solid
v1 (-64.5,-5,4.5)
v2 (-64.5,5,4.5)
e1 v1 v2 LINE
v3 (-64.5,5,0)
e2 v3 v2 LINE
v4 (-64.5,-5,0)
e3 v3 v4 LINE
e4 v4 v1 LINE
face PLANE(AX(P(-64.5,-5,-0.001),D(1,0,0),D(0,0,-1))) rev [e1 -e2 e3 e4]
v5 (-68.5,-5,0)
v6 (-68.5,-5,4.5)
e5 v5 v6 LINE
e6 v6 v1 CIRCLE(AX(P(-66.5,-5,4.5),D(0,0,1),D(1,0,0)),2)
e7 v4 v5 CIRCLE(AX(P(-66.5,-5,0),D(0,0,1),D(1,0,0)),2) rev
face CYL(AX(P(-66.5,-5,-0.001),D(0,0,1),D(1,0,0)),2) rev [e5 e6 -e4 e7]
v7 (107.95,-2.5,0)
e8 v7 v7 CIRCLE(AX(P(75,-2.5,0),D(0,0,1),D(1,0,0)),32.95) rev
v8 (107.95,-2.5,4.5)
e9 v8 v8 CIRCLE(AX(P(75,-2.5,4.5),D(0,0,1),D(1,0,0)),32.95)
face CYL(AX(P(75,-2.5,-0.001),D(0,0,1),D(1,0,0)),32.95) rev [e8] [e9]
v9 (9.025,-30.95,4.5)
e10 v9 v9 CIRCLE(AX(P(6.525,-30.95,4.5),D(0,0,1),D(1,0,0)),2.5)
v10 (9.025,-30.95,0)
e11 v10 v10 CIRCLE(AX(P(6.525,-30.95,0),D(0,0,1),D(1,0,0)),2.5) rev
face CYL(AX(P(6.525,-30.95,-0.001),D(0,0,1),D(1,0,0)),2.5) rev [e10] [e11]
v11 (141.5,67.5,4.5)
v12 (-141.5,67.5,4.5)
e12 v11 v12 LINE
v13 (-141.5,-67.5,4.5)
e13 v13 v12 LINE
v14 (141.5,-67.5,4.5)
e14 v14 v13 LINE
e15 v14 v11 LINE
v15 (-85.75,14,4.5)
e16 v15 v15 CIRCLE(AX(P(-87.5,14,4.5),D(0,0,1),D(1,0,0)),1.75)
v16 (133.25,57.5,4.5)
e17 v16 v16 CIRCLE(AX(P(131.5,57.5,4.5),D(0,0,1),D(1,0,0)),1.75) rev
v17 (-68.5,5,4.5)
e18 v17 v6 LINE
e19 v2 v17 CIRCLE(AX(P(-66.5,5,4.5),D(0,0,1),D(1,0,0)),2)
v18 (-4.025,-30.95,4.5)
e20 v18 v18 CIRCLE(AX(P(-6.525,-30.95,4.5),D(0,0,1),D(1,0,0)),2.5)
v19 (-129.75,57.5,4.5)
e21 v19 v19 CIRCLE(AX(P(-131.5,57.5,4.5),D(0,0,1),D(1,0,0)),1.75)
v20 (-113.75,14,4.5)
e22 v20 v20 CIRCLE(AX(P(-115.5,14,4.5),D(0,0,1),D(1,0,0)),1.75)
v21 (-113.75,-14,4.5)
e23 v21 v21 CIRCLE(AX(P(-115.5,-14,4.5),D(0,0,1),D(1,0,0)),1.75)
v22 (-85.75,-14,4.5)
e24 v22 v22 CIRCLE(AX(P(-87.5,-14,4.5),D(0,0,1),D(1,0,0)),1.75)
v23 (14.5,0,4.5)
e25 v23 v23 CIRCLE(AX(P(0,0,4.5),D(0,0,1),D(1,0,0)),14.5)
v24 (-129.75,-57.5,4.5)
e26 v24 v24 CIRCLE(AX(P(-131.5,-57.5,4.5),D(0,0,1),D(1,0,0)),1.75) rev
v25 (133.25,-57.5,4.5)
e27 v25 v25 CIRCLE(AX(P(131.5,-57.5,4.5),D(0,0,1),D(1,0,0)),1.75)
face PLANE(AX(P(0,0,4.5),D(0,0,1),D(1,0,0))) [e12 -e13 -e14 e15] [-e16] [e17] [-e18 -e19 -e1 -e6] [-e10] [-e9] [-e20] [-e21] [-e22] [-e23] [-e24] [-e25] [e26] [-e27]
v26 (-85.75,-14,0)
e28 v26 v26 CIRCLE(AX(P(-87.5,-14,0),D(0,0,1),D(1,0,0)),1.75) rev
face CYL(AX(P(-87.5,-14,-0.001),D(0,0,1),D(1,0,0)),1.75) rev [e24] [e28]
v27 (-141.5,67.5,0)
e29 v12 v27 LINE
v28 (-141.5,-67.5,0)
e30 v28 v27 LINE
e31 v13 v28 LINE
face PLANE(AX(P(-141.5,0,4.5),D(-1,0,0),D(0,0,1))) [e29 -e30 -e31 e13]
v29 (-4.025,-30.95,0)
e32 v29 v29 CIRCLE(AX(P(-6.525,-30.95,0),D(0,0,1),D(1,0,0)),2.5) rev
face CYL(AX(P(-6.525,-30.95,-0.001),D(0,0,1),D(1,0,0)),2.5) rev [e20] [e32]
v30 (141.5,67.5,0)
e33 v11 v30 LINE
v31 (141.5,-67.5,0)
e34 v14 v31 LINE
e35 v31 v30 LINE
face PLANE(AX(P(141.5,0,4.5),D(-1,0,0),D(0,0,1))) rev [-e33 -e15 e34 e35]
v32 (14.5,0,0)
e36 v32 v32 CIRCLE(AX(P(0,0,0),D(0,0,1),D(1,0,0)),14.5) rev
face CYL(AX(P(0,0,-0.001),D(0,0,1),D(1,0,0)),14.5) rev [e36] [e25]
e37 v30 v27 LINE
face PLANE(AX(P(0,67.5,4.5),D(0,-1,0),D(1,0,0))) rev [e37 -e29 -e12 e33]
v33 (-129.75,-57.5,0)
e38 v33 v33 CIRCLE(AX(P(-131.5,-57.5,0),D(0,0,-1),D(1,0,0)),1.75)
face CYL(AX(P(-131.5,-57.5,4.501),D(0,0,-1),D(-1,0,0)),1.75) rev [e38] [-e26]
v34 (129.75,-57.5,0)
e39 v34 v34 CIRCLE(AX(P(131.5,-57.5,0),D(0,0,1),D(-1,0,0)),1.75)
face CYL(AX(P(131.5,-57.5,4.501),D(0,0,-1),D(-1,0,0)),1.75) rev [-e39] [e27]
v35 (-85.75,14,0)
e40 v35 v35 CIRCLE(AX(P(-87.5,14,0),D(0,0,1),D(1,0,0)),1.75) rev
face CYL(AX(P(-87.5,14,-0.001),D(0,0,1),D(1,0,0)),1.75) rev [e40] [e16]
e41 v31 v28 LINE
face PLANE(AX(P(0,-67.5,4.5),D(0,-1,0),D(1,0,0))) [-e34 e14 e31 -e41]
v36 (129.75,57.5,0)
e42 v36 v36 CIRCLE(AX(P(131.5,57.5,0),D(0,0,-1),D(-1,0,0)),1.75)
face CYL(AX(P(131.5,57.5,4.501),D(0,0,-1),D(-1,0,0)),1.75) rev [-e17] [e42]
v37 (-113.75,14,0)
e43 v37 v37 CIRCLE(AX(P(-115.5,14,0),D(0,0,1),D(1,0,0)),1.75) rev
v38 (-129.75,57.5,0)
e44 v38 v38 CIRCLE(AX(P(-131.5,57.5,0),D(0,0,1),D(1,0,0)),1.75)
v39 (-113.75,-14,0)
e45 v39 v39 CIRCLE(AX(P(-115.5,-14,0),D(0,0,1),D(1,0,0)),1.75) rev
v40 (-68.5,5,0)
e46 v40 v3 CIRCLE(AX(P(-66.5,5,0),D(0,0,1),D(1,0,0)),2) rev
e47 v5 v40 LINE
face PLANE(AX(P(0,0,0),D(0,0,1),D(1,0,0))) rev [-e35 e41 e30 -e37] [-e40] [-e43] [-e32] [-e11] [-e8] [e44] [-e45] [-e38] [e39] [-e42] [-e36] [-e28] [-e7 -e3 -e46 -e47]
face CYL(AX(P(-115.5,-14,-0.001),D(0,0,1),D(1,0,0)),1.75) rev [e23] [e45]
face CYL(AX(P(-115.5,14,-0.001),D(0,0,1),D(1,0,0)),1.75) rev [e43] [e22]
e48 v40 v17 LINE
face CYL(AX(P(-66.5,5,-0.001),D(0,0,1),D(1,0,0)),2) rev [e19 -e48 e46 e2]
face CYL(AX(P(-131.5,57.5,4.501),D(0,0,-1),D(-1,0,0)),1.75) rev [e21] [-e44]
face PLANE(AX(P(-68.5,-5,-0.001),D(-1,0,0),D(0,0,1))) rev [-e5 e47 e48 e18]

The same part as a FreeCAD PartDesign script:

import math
import FreeCAD as App
import Part
import Sketcher

V = App.Vector
Q = App.Units.Quantity

doc = App.newDocument("Part")
body = doc.addObject("PartDesign::Body", "Body")

sketch1 = body.newObject("Sketcher::SketchObject", "Sketch")
sketch1.AttachmentSupport = (doc.getObject("XY_Plane"), [""])
sketch1.MapMode = "FlatFace"
sketch1.addGeometry([
    Part.LineSegment(V(-142, 68, 0), V(-142, -68, 0)),
    Part.LineSegment(V(-142, -68, 0), V(142, -68, 0)),
    Part.LineSegment(V(142, -68, 0), V(142, 68, 0)),
    Part.LineSegment(V(142, 68, 0), V(-142, 68, 0)),
], False)
sketch1.addConstraint([
    Sketcher.Constraint("Coincident", 0, 2, 1, 1),
    Sketcher.Constraint("Coincident", 1, 2, 2, 1),
    Sketcher.Constraint("Coincident", 2, 2, 3, 1),
    Sketcher.Constraint("Coincident", 3, 2, 0, 1),
    Sketcher.Constraint("Vertical", 0),
    Sketcher.Constraint("Horizontal", 1),
    Sketcher.Constraint("Vertical", 2),
    Sketcher.Constraint("Horizontal", 3),
    Sketcher.Constraint("Symmetric", 0, 2, 2, 2, -1, 1),
    Sketcher.Constraint("DistanceX", 1, 1, 1, 2, Q("283 mm")),
    Sketcher.Constraint("DistanceY", 0, 2, 0, 1, Q("135 mm")),
])
pad1 = body.newObject("PartDesign::Pad", "Pad")
pad1.Profile = sketch1
pad1.Length = 4.5

sketch2 = body.newObject("Sketcher::SketchObject", "Sketch001")
sketch2.AttachmentSupport = (doc.getObject("XY_Plane"), [""])
sketch2.MapMode = "FlatFace"
sketch2.addGeometry(Part.Circle(V(-131.5, 57.5, 0), V(0, 0, 1), 1.8), False)
sketch2.addConstraint([
    Sketcher.Constraint("Diameter", 0, Q("3.5 mm")),
    Sketcher.Constraint("DistanceX", 0, 3, -1, 1, Q("131.5 mm")),
    Sketcher.Constraint("DistanceY", -1, 1, 0, 3, Q("57.5 mm")),
])
pocket1 = body.newObject("PartDesign::Pocket", "Pocket")
pocket1.Profile = sketch2
pocket1.Length = 4.5
pocket1.Reversed = True
doc.recompute()

mirrored = body.newObject("PartDesign::Mirrored", "Mirrored")
mirrored.Originals = [pocket1]
mirrored.MirrorPlane = (doc.getObject("XZ_Plane"), [""])
body.Tip = mirrored
doc.recompute()

mirrored2 = body.newObject("PartDesign::Mirrored", "Mirrored001")
mirrored2.Originals = [pocket1]
mirrored2.MirrorPlane = (doc.getObject("YZ_Plane"), [""])
body.Tip = mirrored2

sketch3 = body.newObject("Sketcher::SketchObject", "Sketch002")
sketch3.AttachmentSupport = (doc.getObject("XY_Plane"), [""])
sketch3.MapMode = "FlatFace"
sketch3.addGeometry(Part.Circle(V(131.5, -57.5, 0), V(0, 0, 1), 1.8), False)
sketch3.addConstraint([
    Sketcher.Constraint("Diameter", 0, Q("3.5 mm")),
    Sketcher.Constraint("DistanceX", -1, 1, 0, 3, Q("131.5 mm")),
    Sketcher.Constraint("DistanceY", 0, 3, -1, 1, Q("57.5 mm")),
])
pocket2 = body.newObject("PartDesign::Pocket", "Pocket001")
pocket2.Profile = sketch3
pocket2.Length = 4.5
pocket2.Reversed = True

sketch4 = body.newObject("Sketcher::SketchObject", "Sketch003")
sketch4.AttachmentSupport = (doc.getObject("XY_Plane"), [""])
sketch4.MapMode = "FlatFace"
sketch4.AttachmentOffset = App.Placement(V(0, 0, 4.5), App.Rotation())
sketch4.addGeometry(Part.Circle(V(-87.5, -14, 0), V(0, 0, 1), 1.8), False)
sketch4.addConstraint([
    Sketcher.Constraint("Diameter", 0, Q("3.5 mm")),
    Sketcher.Constraint("DistanceY", 0, 3, -1, 1, Q("14 mm")),
    Sketcher.Constraint("DistanceX", 0, 3, -1, 1, Q("87.5 mm")),
])
pocket3 = body.newObject("PartDesign::Pocket", "Pocket002")
pocket3.Profile = sketch4
pocket3.Type = "UpToFirst"

sketch5 = body.newObject("Sketcher::SketchObject", "Sketch004")
sketch5.AttachmentSupport = (doc.getObject("XY_Plane"), [""])
sketch5.MapMode = "FlatFace"
sketch5.AttachmentOffset = App.Placement(V(0, 0, 4.5), App.Rotation())
sketch5.addGeometry(Part.Circle(V(-115.5, -14, 0), V(0, 0, 1), 1.8), False)
sketch5.addConstraint([
    Sketcher.Constraint("Diameter", 0, Q("3.5 mm")),
    Sketcher.Constraint("DistanceY", 0, 3, -1, 1, Q("14 mm")),
    Sketcher.Constraint("DistanceX", 0, 3, -1, 1, Q("115.5 mm")),
])
pocket4 = body.newObject("PartDesign::Pocket", "Pocket003")
pocket4.Profile = sketch5
pocket4.Type = "UpToFirst"

sketch6 = body.newObject("Sketcher::SketchObject", "Sketch005")
sketch6.AttachmentSupport = (doc.getObject("XY_Plane"), [""])
sketch6.MapMode = "FlatFace"
sketch6.AttachmentOffset = App.Placement(V(0, 0, 4.5), App.Rotation())
sketch6.addGeometry(Part.Circle(V(-115.5, 14, 0), V(0, 0, 1), 1.8), False)
sketch6.addConstraint([
    Sketcher.Constraint("Diameter", 0, Q("3.5 mm")),
    Sketcher.Constraint("DistanceY", -1, 1, 0, 3, Q("14 mm")),
    Sketcher.Constraint("DistanceX", 0, 3, -1, 1, Q("115.5 mm")),
])
pocket5 = body.newObject("PartDesign::Pocket", "Pocket004")
pocket5.Profile = sketch6
pocket5.Type = "UpToFirst"

sketch7 = body.newObject("Sketcher::SketchObject", "Sketch006")
sketch7.AttachmentSupport = (doc.getObject("XY_Plane"), [""])
sketch7.MapMode = "FlatFace"
sketch7.AttachmentOffset = App.Placement(V(0, 0, 4.5), App.Rotation())
sketch7.addGeometry(Part.Circle(V(-87.5, 14, 0), V(0, 0, 1), 1.8), False)
sketch7.addConstraint([
    Sketcher.Constraint("Diameter", 0, Q("3.5 mm")),
    Sketcher.Constraint("DistanceY", -1, 1, 0, 3, Q("14 mm")),
    Sketcher.Constraint("DistanceX", 0, 3, -1, 1, Q("87.5 mm")),
])
pocket6 = body.newObject("PartDesign::Pocket", "Pocket005")
pocket6.Profile = sketch7
pocket6.Type = "UpToFirst"

sketch8 = body.newObject("Sketcher::SketchObject", "Sketch007")
sketch8.AttachmentSupport = (doc.getObject("XY_Plane"), [""])
sketch8.MapMode = "FlatFace"
sketch8.AttachmentOffset = App.Placement(V(0, 0, 4.5), App.Rotation())
sketch8.addGeometry([
    Part.LineSegment(V(-68.5, 5, 0), V(-68.5, -5, 0)),
    Part.ArcOfCircle(Part.Circle(V(-66.5, -5, 0), V(0, 0, 1), 2), math.radians(180), math.radians(360)),
    Part.LineSegment(V(-64.5, -5, 0), V(-64.5, 5, 0)),
    Part.ArcOfCircle(Part.Circle(V(-66.5, 5, 0), V(0, 0, 1), 2), math.radians(0), math.radians(180)),
], False)
sketch8.addConstraint([
    Sketcher.Constraint("Tangent", 0, 2, 1, 1),
    Sketcher.Constraint("Tangent", 1, 2, 2, 1),
    Sketcher.Constraint("Tangent", 2, 2, 3, 1),
    Sketcher.Constraint("Tangent", 3, 2, 0, 1),
    Sketcher.Constraint("Vertical", 0),
    Sketcher.Constraint("Vertical", 2),
    Sketcher.Constraint("Radius", 1, Q("2 mm")),
    Sketcher.Constraint("DistanceY", 0, 2, 0, 1, Q("10 mm")),
    Sketcher.Constraint("DistanceY", 1, 3, -1, 1, Q("5 mm")),
    Sketcher.Constraint("DistanceX", 1, 3, -1, 1, Q("66.5 mm")),
])
pocket7 = body.newObject("PartDesign::Pocket", "Pocket006")
pocket7.Profile = sketch8
pocket7.Type = "UpToFirst"

sketch9 = body.newObject("Sketcher::SketchObject", "Sketch008")
sketch9.AttachmentSupport = (doc.getObject("XY_Plane"), [""])
sketch9.MapMode = "FlatFace"
sketch9.AttachmentOffset = App.Placement(V(0, 0, 4.5), App.Rotation())
sketch9.addGeometry(Part.Circle(V(75, -2, 0), V(0, 0, 1), 33), False)
sketch9.addConstraint([
    Sketcher.Constraint("Diameter", 0, Q("65.9 mm")),
    Sketcher.Constraint("DistanceX", -1, 1, 0, 3, Q("75 mm")),
    Sketcher.Constraint("DistanceY", 0, 3, -1, 1, Q("2.5 mm")),
])
pocket8 = body.newObject("PartDesign::Pocket", "Pocket007")
pocket8.Profile = sketch9
pocket8.Type = "UpToFirst"

sketch10 = body.newObject("Sketcher::SketchObject", "Sketch009")
sketch10.AttachmentSupport = (doc.getObject("XY_Plane"), [""])
sketch10.MapMode = "FlatFace"
sketch10.AttachmentOffset = App.Placement(V(0, 0, 4.5), App.Rotation())
sketch10.addGeometry(Part.Circle(V(0, 0, 0), V(0, 0, 1), 14), False)
sketch10.addConstraint([
    Sketcher.Constraint("Coincident", 0, 3, -1, 1),
    Sketcher.Constraint("Diameter", 0, Q("29 mm")),
])
pocket9 = body.newObject("PartDesign::Pocket", "Pocket008")
pocket9.Profile = sketch10
pocket9.Type = "UpToFirst"

sketch11 = body.newObject("Sketcher::SketchObject", "Sketch010")
sketch11.AttachmentSupport = (doc.getObject("XY_Plane"), [""])
sketch11.MapMode = "FlatFace"
sketch11.AttachmentOffset = App.Placement(V(0, 0, 4.5), App.Rotation())
sketch11.addGeometry(Part.Circle(V(-6.5, -30.9, 0), V(0, 0, 1), 2.5), False)
sketch11.addConstraint([
    Sketcher.Constraint("Diameter", 0, Q("5 mm")),
    Sketcher.Constraint("DistanceY", 0, 3, -1, 1, Q("30.95 mm")),
    Sketcher.Constraint("DistanceX", 0, 3, -1, 1, Q("6.525 mm")),
])
pocket10 = body.newObject("PartDesign::Pocket", "Pocket009")
pocket10.Profile = sketch11
pocket10.Type = "UpToFirst"

sketch12 = body.newObject("Sketcher::SketchObject", "Sketch011")
sketch12.AttachmentSupport = (doc.getObject("XY_Plane"), [""])
sketch12.MapMode = "FlatFace"
sketch12.AttachmentOffset = App.Placement(V(0, 0, 4.5), App.Rotation())
sketch12.addGeometry(Part.Circle(V(6.5, -30.9, 0), V(0, 0, 1), 2.5), False)
sketch12.addConstraint([
    Sketcher.Constraint("Diameter", 0, Q("5 mm")),
    Sketcher.Constraint("DistanceY", 0, 3, -1, 1, Q("30.95 mm")),
    Sketcher.Constraint("DistanceX", -1, 1, 0, 3, Q("6.525 mm")),
])
pocket11 = body.newObject("PartDesign::Pocket", "Pocket010")
pocket11.Profile = sketch12
pocket11.Type = "UpToFirst"

doc.recompute()
